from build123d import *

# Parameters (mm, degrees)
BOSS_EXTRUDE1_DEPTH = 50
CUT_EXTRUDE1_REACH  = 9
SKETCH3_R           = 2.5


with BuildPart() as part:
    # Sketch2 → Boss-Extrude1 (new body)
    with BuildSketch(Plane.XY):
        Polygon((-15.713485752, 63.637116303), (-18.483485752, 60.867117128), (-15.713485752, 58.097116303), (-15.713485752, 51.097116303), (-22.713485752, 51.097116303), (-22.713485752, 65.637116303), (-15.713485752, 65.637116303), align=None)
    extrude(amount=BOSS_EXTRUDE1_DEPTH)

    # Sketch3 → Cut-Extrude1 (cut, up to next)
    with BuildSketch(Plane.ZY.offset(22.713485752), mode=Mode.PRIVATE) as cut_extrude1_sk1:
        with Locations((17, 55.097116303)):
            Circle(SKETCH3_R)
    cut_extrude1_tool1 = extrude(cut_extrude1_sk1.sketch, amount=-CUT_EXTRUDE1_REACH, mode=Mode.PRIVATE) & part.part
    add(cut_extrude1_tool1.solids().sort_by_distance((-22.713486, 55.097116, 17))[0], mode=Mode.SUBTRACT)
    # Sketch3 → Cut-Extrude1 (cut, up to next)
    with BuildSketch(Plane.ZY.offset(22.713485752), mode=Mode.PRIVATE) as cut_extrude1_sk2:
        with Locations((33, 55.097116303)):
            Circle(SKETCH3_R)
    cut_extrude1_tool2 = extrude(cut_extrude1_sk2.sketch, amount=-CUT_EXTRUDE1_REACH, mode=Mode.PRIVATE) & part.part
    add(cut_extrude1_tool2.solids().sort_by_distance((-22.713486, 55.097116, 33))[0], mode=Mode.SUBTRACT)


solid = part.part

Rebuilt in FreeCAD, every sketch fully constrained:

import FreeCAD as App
import Part
import Sketcher
from FreeCAD import Vector


def add_polygon(sketch, points):
    """Adds a closed chain of lines whose ends are joined by coincident constraints."""
    first, n = sketch.GeometryCount, len(points)
    for a, b in zip(points, points[1:] + points[:1]):
        sketch.addGeometry(Part.LineSegment(App.Vector(*a, 0), App.Vector(*b, 0)), False)
    for i in range(n):
        sketch.addConstraint(Sketcher.Constraint("Coincident", first + i, 2, first + (i + 1) % n, 1))

doc = App.newDocument("Part")
body = doc.addObject("PartDesign::Body", "Body")

# Sketch on XY plane
sketch1 = body.newObject("Sketcher::SketchObject", "Sketch")
sketch1.AttachmentSupport = (doc.getObject("XY_Plane"), [""])
sketch1.MapMode = "FlatFace"
add_polygon(sketch1, [(-18.5, 60.9), (-15.7, 63.6), (-15.7, 65.6), (-22.7, 65.6), (-22.7, 51.1), (-15.7, 51.1), (-15.7, 58.1)])  # lines 0-6
sketch1.addConstraint([
    Sketcher.Constraint("Vertical", 1),
    Sketcher.Constraint("Horizontal", 2),
    Sketcher.Constraint("Vertical", 3),
    Sketcher.Constraint("Horizontal", 4),
    Sketcher.Constraint("Vertical", 5),
    Sketcher.Constraint("Perpendicular", 0, 6),
    Sketcher.Constraint("Vertical", 1, 2, 4, 2),
    Sketcher.Constraint("Equal", 4, 5),
    Sketcher.Constraint("Equal", 0, 6),
    Sketcher.Constraint("DistanceX", 2, 2, 2, 1, 7.0),
    Sketcher.Constraint("DistanceY", 1, 1, 1, 2, 2.0),
    Sketcher.Constraint("DistanceY", 3, 2, 3, 1, 14.54),
    Sketcher.Constraint("DistanceX", 0, 2, -1, 1, 15.713486),
    Sketcher.Constraint("DistanceY", -1, 1, 0, 2, 63.637116),
])
pad1 = body.newObject("PartDesign::Pad", "Pad")
pad1.Profile = sketch1
pad1.Length = 50

# Sketch on YZ plane
sketch2 = body.newObject("Sketcher::SketchObject", "Sketch001")
sketch2.AttachmentSupport = (doc.getObject("YZ_Plane"), [""])
sketch2.MapMode = "FlatFace"
sketch2.AttachmentOffset = App.Placement(Vector(0, 0, -22.713486), App.Rotation())
sketch2.addGeometry(Part.Circle(Vector(55.1, 17, 0), Vector(0, 0, 1), 2.5), False)
sketch2.addConstraint([
    Sketcher.Constraint("Diameter", 0, 5.0),
    Sketcher.Constraint("DistanceY", -1, 1, 0, 3, 17.0),
    Sketcher.Constraint("DistanceX", -1, 1, 0, 3, 55.097116),
])
pocket1 = body.newObject("PartDesign::Pocket", "Pocket")
pocket1.Profile = sketch2
pocket1.Type = "UpToFirst"
pocket1.Reversed = True

# Sketch on YZ plane
sketch3 = body.newObject("Sketcher::SketchObject", "Sketch002")
sketch3.AttachmentSupport = (doc.getObject("YZ_Plane"), [""])
sketch3.MapMode = "FlatFace"
sketch3.AttachmentOffset = App.Placement(Vector(0, 0, -22.713486), App.Rotation())
sketch3.addGeometry(Part.Circle(Vector(55.1, 33, 0), Vector(0, 0, 1), 2.5), False)
sketch3.addConstraint([
    Sketcher.Constraint("Diameter", 0, 5.0),
    Sketcher.Constraint("DistanceY", -1, 1, 0, 3, 33.0),
    Sketcher.Constraint("DistanceX", -1, 1, 0, 3, 55.097116),
])
pocket2 = body.newObject("PartDesign::Pocket", "Pocket001")
pocket2.Profile = sketch3
pocket2.Type = "UpToFirst"
pocket2.Reversed = True

doc.recompute()
